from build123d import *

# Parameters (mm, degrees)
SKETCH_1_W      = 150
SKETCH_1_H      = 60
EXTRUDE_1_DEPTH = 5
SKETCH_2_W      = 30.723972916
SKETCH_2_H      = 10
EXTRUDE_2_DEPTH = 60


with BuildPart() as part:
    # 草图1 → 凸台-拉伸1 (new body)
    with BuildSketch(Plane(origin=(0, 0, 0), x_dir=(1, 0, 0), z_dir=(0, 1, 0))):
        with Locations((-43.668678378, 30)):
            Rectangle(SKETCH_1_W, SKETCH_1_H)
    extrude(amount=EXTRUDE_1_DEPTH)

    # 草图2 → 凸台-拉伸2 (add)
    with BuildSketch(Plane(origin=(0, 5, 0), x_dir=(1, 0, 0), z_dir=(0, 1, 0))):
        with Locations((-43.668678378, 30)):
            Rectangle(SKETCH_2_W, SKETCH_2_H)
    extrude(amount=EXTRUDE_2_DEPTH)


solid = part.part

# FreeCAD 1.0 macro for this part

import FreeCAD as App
import Part
import Sketcher
Q = App.Units.Quantity


def add_polygon(sketch, points):
    """Adds a closed chain of lines whose ends are joined by coincident constraints."""
    first, n = sketch.GeometryCount, len(points)
    for a, b in zip(points, points[1:] + points[:1]):
        sketch.addGeometry(Part.LineSegment(App.Vector(*a, 0), App.Vector(*b, 0)), False)
    for i in range(n):
        sketch.addConstraint(Sketcher.Constraint("Coincident", first + i, 2, first + (i + 1) % n, 1))

doc = App.newDocument("Part")
body = doc.addObject("PartDesign::Body", "Body")

sketch1 = body.newObject("Sketcher::SketchObject", "Sketch")
sketch1.AttachmentSupport = (doc.getObject("XZ_Plane"), [""])
sketch1.MapMode = "FlatFace"
add_polygon(sketch1, [(-118.668678, -60), (-118.668678, 0), (31.331322, 0), (31.331322, -60)])
sketch1.addConstraint([
    Sketcher.Constraint("Vertical", 0),
    Sketcher.Constraint("Horizontal", 1),
    Sketcher.Constraint("Vertical", 2),
    Sketcher.Constraint("Horizontal", 3),
    Sketcher.Constraint("PointOnObject", 0, 2, -1),
    Sketcher.Constraint("DistanceX", 1, 1, 1, 2, Q("150 mm")),
    Sketcher.Constraint("DistanceY", 0, 1, 0, 2, Q("60 mm")),
    Sketcher.Constraint("DistanceX", 0, 2, -1, 1, Q("118.668678 mm")),
])
pad1 = body.newObject("PartDesign::Pad", "Pad")
pad1.Profile = sketch1
pad1.Length = 5
pad1.Reversed = True

sketch2 = body.newObject("Sketcher::SketchObject", "Sketch001")
sketch2.AttachmentSupport = (doc.getObject("XZ_Plane"), [""])
sketch2.MapMode = "FlatFace"
sketch2.AttachmentOffset = App.Placement(App.Vector(0, 0, -5), App.Rotation())
add_polygon(sketch2, [(-59.030665, -35), (-59.030665, -25), (-28.306692, -25), (-28.306692, -35)])
sketch2.addConstraint([
    Sketcher.Constraint("Vertical", 0),
    Sketcher.Constraint("Horizontal", 1),
    Sketcher.Constraint("Vertical", 2),
    Sketcher.Constraint("Horizontal", 3),
    Sketcher.Constraint("DistanceY", 0, 1, 0, 2, Q("10 mm")),
    Sketcher.Constraint("DistanceY", 0, 2, -1, 1, Q("25 mm")),
    Sketcher.Constraint("DistanceX", 1, 1, 1, 2, Q("30.723973 mm")),
    Sketcher.Constraint("DistanceX", 1, 2, -1, 1, Q("28.306692 mm")),
])
pad2 = body.newObject("PartDesign::Pad", "Pad001")
pad2.Profile = sketch2
pad2.Length = 60
pad2.Reversed = True

doc.recompute()
